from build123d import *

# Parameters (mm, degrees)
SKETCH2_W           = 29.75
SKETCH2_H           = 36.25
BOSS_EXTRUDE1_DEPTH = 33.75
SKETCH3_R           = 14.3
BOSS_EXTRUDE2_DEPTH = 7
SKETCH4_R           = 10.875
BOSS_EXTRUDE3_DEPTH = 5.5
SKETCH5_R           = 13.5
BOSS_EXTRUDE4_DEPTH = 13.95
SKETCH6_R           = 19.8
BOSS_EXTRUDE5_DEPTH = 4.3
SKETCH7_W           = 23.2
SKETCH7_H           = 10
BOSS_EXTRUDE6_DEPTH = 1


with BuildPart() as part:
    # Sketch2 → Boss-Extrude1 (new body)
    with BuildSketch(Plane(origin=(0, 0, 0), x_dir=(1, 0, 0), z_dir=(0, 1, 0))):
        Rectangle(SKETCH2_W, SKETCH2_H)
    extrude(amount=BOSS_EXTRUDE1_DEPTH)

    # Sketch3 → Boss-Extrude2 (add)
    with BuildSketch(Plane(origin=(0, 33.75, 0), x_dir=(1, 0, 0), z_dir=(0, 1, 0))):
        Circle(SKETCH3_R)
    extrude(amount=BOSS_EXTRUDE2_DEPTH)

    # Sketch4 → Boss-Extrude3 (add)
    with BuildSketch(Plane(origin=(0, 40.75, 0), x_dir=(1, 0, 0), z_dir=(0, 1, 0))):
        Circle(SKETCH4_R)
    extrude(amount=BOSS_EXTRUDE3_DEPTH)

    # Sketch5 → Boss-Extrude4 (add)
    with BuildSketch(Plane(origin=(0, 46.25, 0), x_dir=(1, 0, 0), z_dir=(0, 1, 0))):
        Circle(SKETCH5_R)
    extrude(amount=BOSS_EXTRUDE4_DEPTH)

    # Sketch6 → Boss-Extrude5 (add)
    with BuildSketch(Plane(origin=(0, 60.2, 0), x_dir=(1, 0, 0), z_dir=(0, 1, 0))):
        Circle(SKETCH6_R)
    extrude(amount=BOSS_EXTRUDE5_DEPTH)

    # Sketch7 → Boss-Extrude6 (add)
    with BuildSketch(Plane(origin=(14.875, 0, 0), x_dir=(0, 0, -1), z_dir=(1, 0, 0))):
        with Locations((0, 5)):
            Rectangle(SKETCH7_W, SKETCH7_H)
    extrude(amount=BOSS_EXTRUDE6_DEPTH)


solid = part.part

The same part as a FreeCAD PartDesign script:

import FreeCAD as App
import Part
import Sketcher
Q = App.Units.Quantity

doc = App.newDocument("Part")
params = doc.addObject("Spreadsheet::Sheet", "Params")
for row, (alias, value) in enumerate([
    ("sketch1_width", "29.75 mm"),
    ("sketch1_height", "36.25 mm"),
    ("pad1_length", "33.75 mm"),
    ("sketch2_diameter", "28.6 mm"),
    ("pad2_length", "7 mm"),
    ("sketch3_diameter", "21.75 mm"),
    ("pad3_length", "5.5 mm"),
    ("sketch4_diameter", "27 mm"),
    ("pad4_length", "13.95 mm"),
    ("sketch5_diameter", "39.6 mm"),
    ("pad5_length", "4.3 mm"),
    ("sketch6_width", "10 mm"),
    ("sketch6_height", "23.2 mm"),
    ("pad6_length", "1 mm"),
], start=1):
    params.set(f"A{row}", alias)
    params.set(f"B{row}", "=" + value)
    params.setAlias(f"B{row}", alias)

body = doc.addObject("PartDesign::Body", "Body")

# Sketch on XZ plane
sketch1 = doc.addObject("Sketcher::SketchObject", "Sketch")
body.addObject(sketch1)
sketch1.AttachmentSupport = (doc.XZ_Plane, [""])
sketch1.MapMode = "FlatFace"
sketch1.addGeometry(Part.LineSegment(App.Vector(-14.875, -18.125, 0), App.Vector(-14.875, 18.125, 0)), False)
sketch1.addGeometry(Part.LineSegment(App.Vector(-14.875, 18.125, 0), App.Vector(14.875, 18.125, 0)), False)
sketch1.addGeometry(Part.LineSegment(App.Vector(14.875, 18.125, 0), App.Vector(14.875, -18.125, 0)), False)
sketch1.addGeometry(Part.LineSegment(App.Vector(14.875, -18.125, 0), App.Vector(-14.875, -18.125, 0)), False)
sketch1.addConstraint(Sketcher.Constraint("Coincident", 0, 2, 1, 1))
sketch1.addConstraint(Sketcher.Constraint("Coincident", 1, 2, 2, 1))
sketch1.addConstraint(Sketcher.Constraint("Coincident", 2, 2, 3, 1))
sketch1.addConstraint(Sketcher.Constraint("Coincident", 3, 2, 0, 1))
sketch1.addConstraint(Sketcher.Constraint("Vertical", 0))
sketch1.addConstraint(Sketcher.Constraint("Horizontal", 1))
sketch1.addConstraint(Sketcher.Constraint("Vertical", 2))
sketch1.addConstraint(Sketcher.Constraint("Horizontal", 3))
sketch1.addConstraint(Sketcher.Constraint("Symmetric", 0, 2, 2, 2, -1, 1))
sketch1.addConstraint(Sketcher.Constraint("DistanceX", 1, 1, 1, 2, Q("29.75 mm")))
sketch1.addConstraint(Sketcher.Constraint("DistanceY", 0, 1, 0, 2, Q("36.25 mm")))
sketch1.setExpression("Constraints[9]", "Params.sketch1_width")
sketch1.setExpression("Constraints[10]", "Params.sketch1_height")
pad1 = doc.addObject("PartDesign::Pad", "Pad")
body.addObject(pad1)
pad1.Profile = sketch1
pad1.setExpression("Length", "Params.pad1_length")
pad1.Reversed = True

# Sketch on XZ plane
sketch2 = doc.addObject("Sketcher::SketchObject", "Sketch001")
body.addObject(sketch2)
sketch2.AttachmentSupport = (doc.XZ_Plane, [""])
sketch2.MapMode = "FlatFace"
sketch2.AttachmentOffset = App.Placement(App.Vector(0, 0, -33.75), App.Rotation())
sketch2.addGeometry(Part.Circle(App.Vector(0, 0, 0), App.Vector(0, 0, 1), 14.3), False)
sketch2.addConstraint(Sketcher.Constraint("Coincident", 0, 3, -1, 1))
sketch2.addConstraint(Sketcher.Constraint("Diameter", 0, Q("28.6 mm")))
sketch2.setExpression("Constraints[1]", "Params.sketch2_diameter")
pad2 = doc.addObject("PartDesign::Pad", "Pad001")
body.addObject(pad2)
pad2.Profile = sketch2
pad2.setExpression("Length", "Params.pad2_length")
pad2.Reversed = True

# Sketch on XZ plane
sketch3 = doc.addObject("Sketcher::SketchObject", "Sketch002")
body.addObject(sketch3)
sketch3.AttachmentSupport = (doc.XZ_Plane, [""])
sketch3.MapMode = "FlatFace"
sketch3.AttachmentOffset = App.Placement(App.Vector(0, 0, -40.75), App.Rotation())
sketch3.addGeometry(Part.Circle(App.Vector(0, 0, 0), App.Vector(0, 0, 1), 10.875), False)
sketch3.addConstraint(Sketcher.Constraint("Coincident", 0, 3, -1, 1))
sketch3.addConstraint(Sketcher.Constraint("Diameter", 0, Q("21.75 mm")))
sketch3.setExpression("Constraints[1]", "Params.sketch3_diameter")
pad3 = doc.addObject("PartDesign::Pad", "Pad002")
body.addObject(pad3)
pad3.Profile = sketch3
pad3.setExpression("Length", "Params.pad3_length")
pad3.Reversed = True

# Sketch on XZ plane
sketch4 = doc.addObject("Sketcher::SketchObject", "Sketch003")
body.addObject(sketch4)
sketch4.AttachmentSupport = (doc.XZ_Plane, [""])
sketch4.MapMode = "FlatFace"
sketch4.AttachmentOffset = App.Placement(App.Vector(0, 0, -46.25), App.Rotation())
sketch4.addGeometry(Part.Circle(App.Vector(0, 0, 0), App.Vector(0, 0, 1), 13.5), False)
sketch4.addConstraint(Sketcher.Constraint("Coincident", 0, 3, -1, 1))
sketch4.addConstraint(Sketcher.Constraint("Diameter", 0, Q("27 mm")))
sketch4.setExpression("Constraints[1]", "Params.sketch4_diameter")
pad4 = doc.addObject("PartDesign::Pad", "Pad003")
body.addObject(pad4)
pad4.Profile = sketch4
pad4.setExpression("Length", "Params.pad4_length")
pad4.Reversed = True

# Sketch on XZ plane
sketch5 = doc.addObject("Sketcher::SketchObject", "Sketch004")
body.addObject(sketch5)
sketch5.AttachmentSupport = (doc.XZ_Plane, [""])
sketch5.MapMode = "FlatFace"
sketch5.AttachmentOffset = App.Placement(App.Vector(0, 0, -60.2), App.Rotation())
sketch5.addGeometry(Part.Circle(App.Vector(0, 0, 0), App.Vector(0, 0, 1), 19.8), False)
sketch5.addConstraint(Sketcher.Constraint("Coincident", 0, 3, -1, 1))
sketch5.addConstraint(Sketcher.Constraint("Diameter", 0, Q("39.6 mm")))
sketch5.setExpression("Constraints[1]", "Params.sketch5_diameter")
pad5 = doc.addObject("PartDesign::Pad", "Pad004")
body.addObject(pad5)
pad5.Profile = sketch5
pad5.setExpression("Length", "Params.pad5_length")
pad5.Reversed = True

# Sketch on YZ plane
sketch6 = doc.addObject("Sketcher::SketchObject", "Sketch005")
body.addObject(sketch6)
sketch6.AttachmentSupport = (doc.YZ_Plane, [""])
sketch6.MapMode = "FlatFace"
sketch6.AttachmentOffset = App.Placement(App.Vector(0, 0, 14.875), App.Rotation())
sketch6.addGeometry(Part.LineSegment(App.Vector(10, 11.6, 0), App.Vector(0, 11.6, 0)), False)
sketch6.addGeometry(Part.LineSegment(App.Vector(0, 11.6, 0), App.Vector(0, -11.6, 0)), False)
sketch6.addGeometry(Part.LineSegment(App.Vector(0, -11.6, 0), App.Vector(10, -11.6, 0)), False)
sketch6.addGeometry(Part.LineSegment(App.Vector(10, -11.6, 0), App.Vector(10, 11.6, 0)), False)
sketch6.addConstraint(Sketcher.Constraint("Coincident", 0, 2, 1, 1))
sketch6.addConstraint(Sketcher.Constraint("Coincident", 1, 2, 2, 1))
sketch6.addConstraint(Sketcher.Constraint("Coincident", 2, 2, 3, 1))
sketch6.addConstraint(Sketcher.Constraint("Coincident", 3, 2, 0, 1))
sketch6.addConstraint(Sketcher.Constraint("Horizontal", 0))
sketch6.addConstraint(Sketcher.Constraint("Vertical", 1))
sketch6.addConstraint(Sketcher.Constraint("Horizontal", 2))
sketch6.addConstraint(Sketcher.Constraint("Vertical", 3))
sketch6.addConstraint(Sketcher.Constraint("Symmetric", 0, 2, 1, 2, -1, 1))
sketch6.addConstraint(Sketcher.Constraint("DistanceX", 0, 2, 0, 1, Q("10 mm")))
sketch6.addConstraint(Sketcher.Constraint("DistanceY", 1, 2, 1, 1, Q("23.2 mm")))
sketch6.setExpression("Constraints[9]", "Params.sketch6_width")
sketch6.setExpression("Constraints[10]", "Params.sketch6_height")
pad6 = doc.addObject("PartDesign::Pad", "Pad005")
body.addObject(pad6)
pad6.Profile = sketch6
pad6.setExpression("Length", "Params.pad6_length")

doc.recompute()
